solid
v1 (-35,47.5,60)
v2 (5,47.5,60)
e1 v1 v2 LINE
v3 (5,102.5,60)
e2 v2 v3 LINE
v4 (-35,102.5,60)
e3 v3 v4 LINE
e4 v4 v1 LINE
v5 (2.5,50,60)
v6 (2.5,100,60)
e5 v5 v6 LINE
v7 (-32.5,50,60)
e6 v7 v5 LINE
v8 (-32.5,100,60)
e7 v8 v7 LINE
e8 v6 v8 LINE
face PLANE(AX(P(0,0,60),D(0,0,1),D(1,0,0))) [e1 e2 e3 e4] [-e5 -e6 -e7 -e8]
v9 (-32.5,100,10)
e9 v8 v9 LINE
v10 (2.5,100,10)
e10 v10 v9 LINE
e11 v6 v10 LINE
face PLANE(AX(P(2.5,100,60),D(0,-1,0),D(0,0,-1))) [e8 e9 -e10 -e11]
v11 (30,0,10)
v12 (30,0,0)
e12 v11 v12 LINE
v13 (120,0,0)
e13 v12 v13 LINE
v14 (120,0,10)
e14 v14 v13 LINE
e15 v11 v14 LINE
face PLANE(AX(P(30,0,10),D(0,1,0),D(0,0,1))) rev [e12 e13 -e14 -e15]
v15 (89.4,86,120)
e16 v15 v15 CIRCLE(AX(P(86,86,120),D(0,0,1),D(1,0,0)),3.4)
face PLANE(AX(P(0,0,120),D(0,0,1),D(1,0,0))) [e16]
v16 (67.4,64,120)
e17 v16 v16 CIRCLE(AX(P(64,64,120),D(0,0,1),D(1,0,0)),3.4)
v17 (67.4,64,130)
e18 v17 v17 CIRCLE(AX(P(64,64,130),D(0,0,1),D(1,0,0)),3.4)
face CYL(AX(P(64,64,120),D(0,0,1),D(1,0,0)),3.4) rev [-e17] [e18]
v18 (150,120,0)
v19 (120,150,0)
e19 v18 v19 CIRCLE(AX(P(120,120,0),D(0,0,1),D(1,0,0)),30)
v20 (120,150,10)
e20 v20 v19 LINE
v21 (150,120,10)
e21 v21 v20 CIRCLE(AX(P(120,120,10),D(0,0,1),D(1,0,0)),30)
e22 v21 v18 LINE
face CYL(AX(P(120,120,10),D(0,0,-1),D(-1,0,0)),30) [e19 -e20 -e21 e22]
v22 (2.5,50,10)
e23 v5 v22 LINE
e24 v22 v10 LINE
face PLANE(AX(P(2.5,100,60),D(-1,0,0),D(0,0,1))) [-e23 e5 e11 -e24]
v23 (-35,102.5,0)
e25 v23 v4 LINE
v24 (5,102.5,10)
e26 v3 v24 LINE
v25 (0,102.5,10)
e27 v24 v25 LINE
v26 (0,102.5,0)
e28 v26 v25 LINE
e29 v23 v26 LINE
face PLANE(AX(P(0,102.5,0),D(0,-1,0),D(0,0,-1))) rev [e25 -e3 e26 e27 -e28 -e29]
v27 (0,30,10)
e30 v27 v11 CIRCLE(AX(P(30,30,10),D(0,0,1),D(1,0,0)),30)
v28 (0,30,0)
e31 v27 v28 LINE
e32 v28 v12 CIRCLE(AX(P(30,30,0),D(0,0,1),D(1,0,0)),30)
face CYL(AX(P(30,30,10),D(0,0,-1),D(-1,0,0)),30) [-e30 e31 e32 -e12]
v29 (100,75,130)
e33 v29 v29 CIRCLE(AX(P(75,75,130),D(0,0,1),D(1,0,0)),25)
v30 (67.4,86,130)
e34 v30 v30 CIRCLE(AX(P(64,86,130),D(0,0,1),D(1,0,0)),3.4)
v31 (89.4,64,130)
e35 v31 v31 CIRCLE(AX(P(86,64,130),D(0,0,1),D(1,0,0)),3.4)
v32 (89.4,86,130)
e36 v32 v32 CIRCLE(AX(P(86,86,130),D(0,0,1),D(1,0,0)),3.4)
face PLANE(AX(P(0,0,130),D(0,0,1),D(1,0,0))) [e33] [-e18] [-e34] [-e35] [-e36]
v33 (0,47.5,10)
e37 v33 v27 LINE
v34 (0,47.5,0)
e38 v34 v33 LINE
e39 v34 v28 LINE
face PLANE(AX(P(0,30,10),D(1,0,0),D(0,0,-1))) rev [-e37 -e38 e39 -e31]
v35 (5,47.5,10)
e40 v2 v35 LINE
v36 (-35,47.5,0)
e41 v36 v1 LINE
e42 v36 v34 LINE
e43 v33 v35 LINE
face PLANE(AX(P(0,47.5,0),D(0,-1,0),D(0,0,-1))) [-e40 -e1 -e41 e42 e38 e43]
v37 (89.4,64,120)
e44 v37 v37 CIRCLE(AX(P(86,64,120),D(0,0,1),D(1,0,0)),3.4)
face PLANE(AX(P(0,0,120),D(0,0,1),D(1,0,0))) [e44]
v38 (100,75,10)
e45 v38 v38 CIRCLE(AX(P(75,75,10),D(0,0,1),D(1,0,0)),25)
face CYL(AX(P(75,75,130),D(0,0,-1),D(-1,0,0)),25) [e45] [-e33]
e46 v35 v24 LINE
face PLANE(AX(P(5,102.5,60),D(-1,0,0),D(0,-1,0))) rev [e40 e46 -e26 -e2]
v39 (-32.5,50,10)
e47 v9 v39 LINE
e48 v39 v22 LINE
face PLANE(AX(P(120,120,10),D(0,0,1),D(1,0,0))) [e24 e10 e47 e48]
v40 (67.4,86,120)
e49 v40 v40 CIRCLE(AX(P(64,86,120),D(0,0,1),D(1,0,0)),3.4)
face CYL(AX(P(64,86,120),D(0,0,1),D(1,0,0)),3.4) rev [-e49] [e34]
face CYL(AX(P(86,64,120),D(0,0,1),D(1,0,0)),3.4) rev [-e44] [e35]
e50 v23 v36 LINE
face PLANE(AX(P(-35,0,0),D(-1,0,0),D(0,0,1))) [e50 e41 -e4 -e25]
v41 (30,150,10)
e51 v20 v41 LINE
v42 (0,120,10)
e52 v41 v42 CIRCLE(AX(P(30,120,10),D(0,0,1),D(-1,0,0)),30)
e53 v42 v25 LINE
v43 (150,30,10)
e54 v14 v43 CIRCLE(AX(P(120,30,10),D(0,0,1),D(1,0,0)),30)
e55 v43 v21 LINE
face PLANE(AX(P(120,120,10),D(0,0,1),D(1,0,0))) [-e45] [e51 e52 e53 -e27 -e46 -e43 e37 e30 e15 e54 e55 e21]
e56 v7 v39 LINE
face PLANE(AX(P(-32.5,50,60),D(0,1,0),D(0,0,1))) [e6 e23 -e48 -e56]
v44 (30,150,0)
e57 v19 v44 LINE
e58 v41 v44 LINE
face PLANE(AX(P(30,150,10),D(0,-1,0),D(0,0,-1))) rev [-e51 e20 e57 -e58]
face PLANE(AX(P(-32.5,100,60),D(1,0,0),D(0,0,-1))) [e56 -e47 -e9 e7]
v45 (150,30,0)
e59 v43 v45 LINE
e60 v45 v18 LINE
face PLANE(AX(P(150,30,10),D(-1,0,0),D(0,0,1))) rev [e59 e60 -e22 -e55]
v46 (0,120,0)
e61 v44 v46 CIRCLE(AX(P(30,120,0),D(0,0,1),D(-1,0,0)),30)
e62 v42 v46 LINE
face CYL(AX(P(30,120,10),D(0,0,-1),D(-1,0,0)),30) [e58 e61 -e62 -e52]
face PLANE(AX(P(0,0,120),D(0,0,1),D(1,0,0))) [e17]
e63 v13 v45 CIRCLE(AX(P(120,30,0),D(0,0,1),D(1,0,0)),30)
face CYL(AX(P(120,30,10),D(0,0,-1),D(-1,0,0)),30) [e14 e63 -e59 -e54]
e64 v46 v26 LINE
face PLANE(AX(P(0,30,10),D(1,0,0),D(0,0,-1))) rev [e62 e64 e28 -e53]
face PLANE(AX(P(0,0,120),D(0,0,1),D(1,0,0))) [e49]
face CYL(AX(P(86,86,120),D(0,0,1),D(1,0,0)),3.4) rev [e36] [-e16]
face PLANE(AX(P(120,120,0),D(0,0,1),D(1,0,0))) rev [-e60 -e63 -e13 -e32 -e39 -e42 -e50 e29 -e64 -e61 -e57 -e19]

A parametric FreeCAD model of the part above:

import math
import FreeCAD as App
import Part
import Sketcher

doc = App.newDocument("Part")
body = doc.addObject("PartDesign::Body", "Body")

# Sketch on XY plane
sketch1 = body.newObject("Sketcher::SketchObject", "Sketch")
sketch1.AttachmentSupport = (doc.getObject("XY_Plane"), [""])
sketch1.MapMode = "FlatFace"
sketch1.addGeometry(Part.LineSegment(App.Vector(30, 0, 0), App.Vector(120, 0, 0)), False)
sketch1.addGeometry(Part.ArcOfCircle(Part.Circle(App.Vector(120, 30, 0), App.Vector(0, 0, 1), 30), math.radians(-90), math.radians(0)), False)
sketch1.addGeometry(Part.LineSegment(App.Vector(150, 30, 0), App.Vector(150, 120, 0)), False)
sketch1.addGeometry(Part.ArcOfCircle(Part.Circle(App.Vector(120, 120, 0), App.Vector(0, 0, 1), 30), math.radians(0), math.radians(90)), False)
sketch1.addGeometry(Part.LineSegment(App.Vector(120, 150, 0), App.Vector(30, 150, 0)), False)
sketch1.addGeometry(Part.ArcOfCircle(Part.Circle(App.Vector(30, 120, 0), App.Vector(0, 0, 1), 30), math.radians(90), math.radians(180)), False)
sketch1.addGeometry(Part.LineSegment(App.Vector(0, 120, 0), App.Vector(0, 30, 0)), False)
sketch1.addGeometry(Part.ArcOfCircle(Part.Circle(App.Vector(30, 30, 0), App.Vector(0, 0, 1), 30), math.radians(180), math.radians(270)), False)
sketch1.addConstraint(Sketcher.Constraint("Tangent", 0, 2, 1, 1))
sketch1.addConstraint(Sketcher.Constraint("Tangent", 1, 2, 2, 1))
sketch1.addConstraint(Sketcher.Constraint("Tangent", 2, 2, 3, 1))
sketch1.addConstraint(Sketcher.Constraint("Tangent", 3, 2, 4, 1))
sketch1.addConstraint(Sketcher.Constraint("Tangent", 4, 2, 5, 1))
sketch1.addConstraint(Sketcher.Constraint("Tangent", 5, 2, 6, 1))
sketch1.addConstraint(Sketcher.Constraint("Tangent", 6, 2, 7, 1))
sketch1.addConstraint(Sketcher.Constraint("Tangent", 7, 2, 0, 1))
sketch1.addConstraint(Sketcher.Constraint("Horizontal", 0))
sketch1.addConstraint(Sketcher.Constraint("Vertical", 2))
sketch1.addConstraint(Sketcher.Constraint("Horizontal", 4))
sketch1.addConstraint(Sketcher.Constraint("Vertical", 6))
sketch1.addConstraint(Sketcher.Constraint("Equal", 1, 3))
sketch1.addConstraint(Sketcher.Constraint("Equal", 3, 5))
sketch1.addConstraint(Sketcher.Constraint("Equal", 5, 7))
sketch1.addConstraint(Sketcher.Constraint("PointOnObject", 0, 2, -1))
sketch1.addConstraint(Sketcher.Constraint("PointOnObject", 5, 2, -2))
sketch1.addConstraint(Sketcher.Constraint("Equal", 4, 2))
sketch1.addConstraint(Sketcher.Constraint("Radius", 1, 30.0))
sketch1.addConstraint(Sketcher.Constraint("DistanceX", 0, 1, 0, 2, 90.0))
pad1 = body.newObject("PartDesign::Pad", "Pad")
pad1.Profile = sketch1
pad1.Length = 10

# Sketch on XY plane
sketch2 = body.newObject("Sketcher::SketchObject", "Sketch001")
sketch2.AttachmentSupport = (doc.getObject("XY_Plane"), [""])
sketch2.MapMode = "FlatFace"
sketch2.AttachmentOffset = App.Placement(App.Vector(0, 0, 10), App.Rotation())
sketch2.addGeometry(Part.ArcOfCircle(Part.Circle(App.Vector(75, 75, 0), App.Vector(0, 0, 1), 25), math.radians(0), math.radians(135)), False)
sketch2.addGeometry(Part.ArcOfCircle(Part.Circle(App.Vector(75, 75, 0), App.Vector(0, 0, 1), 25), math.radians(135), math.radians(315)), False)
sketch2.addGeometry(Part.ArcOfCircle(Part.Circle(App.Vector(75, 75, 0), App.Vector(0, 0, 1), 25), math.radians(-45), math.radians(0)), False)
sketch2.addConstraint(Sketcher.Constraint("Tangent", 0, 2, 1, 1))
sketch2.addConstraint(Sketcher.Constraint("Tangent", 1, 2, 2, 1))
sketch2.addConstraint(Sketcher.Constraint("Tangent", 2, 2, 0, 1))
sketch2.addConstraint(Sketcher.Constraint("Horizontal", 1, 3, 2, 2))
sketch2.addConstraint(Sketcher.Constraint("Radius", 0, 25.0))
sketch2.addConstraint(Sketcher.Constraint("DistanceX", -1, 1, 0, 3, 75.0))
sketch2.addConstraint(Sketcher.Constraint("DistanceY", -1, 1, 0, 3, 75.0))
sketch2.addConstraint(Sketcher.Constraint("DistanceX", -1, 1, 0, 2, 57.32233))
sketch2.addConstraint(Sketcher.Constraint("DistanceX", -1, 1, 1, 2, 92.67767))
pad2 = body.newObject("PartDesign::Pad", "Pad001")
pad2.Profile = sketch2
pad2.Length = 120

# Sketch on XY plane
sketch3 = body.newObject("Sketcher::SketchObject", "Sketch002")
sketch3.AttachmentSupport = (doc.getObject("XY_Plane"), [""])
sketch3.MapMode = "FlatFace"
sketch3.AttachmentOffset = App.Placement(App.Vector(0, 0, 130), App.Rotation())
sketch3.addGeometry(Part.ArcOfCircle(Part.Circle(App.Vector(64, 86, 0), App.Vector(0, 0, 1), 3.4), math.radians(0), math.radians(270)), False)
sketch3.addGeometry(Part.ArcOfCircle(Part.Circle(App.Vector(64, 86, 0), App.Vector(0, 0, 1), 3.4), math.radians(-90), math.radians(0)), False)
sketch3.addGeometry(Part.ArcOfCircle(Part.Circle(App.Vector(64, 64, 0), App.Vector(0, 0, 1), 3.4), math.radians(0), math.radians(90)), False)
sketch3.addGeometry(Part.ArcOfCircle(Part.Circle(App.Vector(64, 64, 0), App.Vector(0, 0, 1), 3.4), math.radians(90), math.radians(360)), False)
sketch3.addGeometry(Part.ArcOfCircle(Part.Circle(App.Vector(86, 64, 0), App.Vector(0, 0, 1), 3.4), math.radians(90), math.radians(180)), False)
sketch3.addGeometry(Part.ArcOfCircle(Part.Circle(App.Vector(86, 64, 0), App.Vector(0, 0, 1), 3.4), math.radians(180), math.radians(360)), False)
sketch3.addGeometry(Part.ArcOfCircle(Part.Circle(App.Vector(86, 64, 0), App.Vector(0, 0, 1), 3.4), math.radians(0), math.radians(90)), False)
sketch3.addGeometry(Part.ArcOfCircle(Part.Circle(App.Vector(86, 86, 0), App.Vector(0, 0, 1), 3.4), math.radians(180), math.radians(270)), False)
sketch3.addGeometry(Part.ArcOfCircle(Part.Circle(App.Vector(86, 86, 0), App.Vector(0, 0, 1), 3.4), math.radians(-90), math.radians(0)), False)
sketch3.addGeometry(Part.ArcOfCircle(Part.Circle(App.Vector(86, 86, 0), App.Vector(0, 0, 1), 3.4), math.radians(0), math.radians(180)), False)
sketch3.addConstraint(Sketcher.Constraint("Tangent", 0, 1, 1, 2))
sketch3.addConstraint(Sketcher.Constraint("Coincident", 1, 1, 0, 2))
sketch3.addConstraint(Sketcher.Constraint("Tangent", 2, 1, 3, 2))
sketch3.addConstraint(Sketcher.Constraint("Coincident", 3, 1, 2, 2))
sketch3.addConstraint(Sketcher.Constraint("Tangent", 4, 2, 5, 1))
sketch3.addConstraint(Sketcher.Constraint("Tangent", 5, 2, 6, 1))
sketch3.addConstraint(Sketcher.Constraint("Tangent", 6, 2, 4, 1))
sketch3.addConstraint(Sketcher.Constraint("Tangent", 7, 2, 8, 1))
sketch3.addConstraint(Sketcher.Constraint("Tangent", 8, 2, 9, 1))
sketch3.addConstraint(Sketcher.Constraint("Tangent", 9, 2, 7, 1))
sketch3.addConstraint(Sketcher.Constraint("Equal", 1, 2))
sketch3.addConstraint(Sketcher.Constraint("Equal", 3, 4))
sketch3.addConstraint(Sketcher.Constraint("Equal", 6, 7))
sketch3.addConstraint(Sketcher.Constraint("Horizontal", 3, 3, 4, 3))
sketch3.addConstraint(Sketcher.Constraint("Horizontal", 1, 3, 7, 3))
sketch3.addConstraint(Sketcher.Constraint("Horizontal", 9, 3, 0, 1))
sketch3.addConstraint(Sketcher.Constraint("Horizontal", 6, 3, 2, 1))
sketch3.addConstraint(Sketcher.Constraint("Horizontal", 2, 1, 4, 2))
sketch3.addConstraint(Sketcher.Constraint("Horizontal", 4, 2, 5, 2))
sketch3.addConstraint(Sketcher.Constraint("Horizontal", 0, 1, 8, 2))
sketch3.addConstraint(Sketcher.Constraint("Horizontal", 8, 2, 9, 2))
sketch3.addConstraint(Sketcher.Constraint("Vertical", 1, 3, 2, 3))
sketch3.addConstraint(Sketcher.Constraint("Vertical", 6, 3, 7, 3))
sketch3.addConstraint(Sketcher.Constraint("Vertical", 3, 3, 1, 1))
sketch3.addConstraint(Sketcher.Constraint("Vertical", 1, 1, 3, 1))
sketch3.addConstraint(Sketcher.Constraint("Vertical", 9, 3, 6, 2))
sketch3.addConstraint(Sketcher.Constraint("Vertical", 6, 2, 7, 2))
sketch3.addConstraint(Sketcher.Constraint("Radius", 0, 3.4))
sketch3.addConstraint(Sketcher.Constraint("DistanceX", -1, 1, 0, 3, 64.0))
sketch3.addConstraint(Sketcher.Constraint("DistanceY", -1, 1, 0, 3, 86.0))
sketch3.addConstraint(Sketcher.Constraint("DistanceY", -1, 1, 2, 3, 64.0))
sketch3.addConstraint(Sketcher.Constraint("DistanceX", -1, 1, 4, 3, 86.0))
pocket1 = body.newObject("PartDesign::Pocket", "Pocket")
pocket1.Profile = sketch3
pocket1.Length = 10

# Sketch on XY plane
sketch4 = body.newObject("Sketcher::SketchObject", "Sketch003")
sketch4.AttachmentSupport = (doc.getObject("XY_Plane"), [""])
sketch4.MapMode = "FlatFace"
sketch4.AttachmentOffset = App.Placement(App.Vector(0, 0, 10), App.Rotation())
sketch4.addGeometry(Part.LineSegment(App.Vector(0, 102, 0), App.Vector(-35, 102, 0)), False)
sketch4.addGeometry(Part.LineSegment(App.Vector(-35, 102, 0), App.Vector(-35, 48, 0)), False)
sketch4.addGeometry(Part.LineSegment(App.Vector(-35, 48, 0), App.Vector(0, 48, 0)), False)
sketch4.addGeometry(Part.LineSegment(App.Vector(0, 48, 0), App.Vector(0, 102, 0)), False)
sketch4.addConstraint(Sketcher.Constraint("Coincident", 0, 2, 1, 1))
sketch4.addConstraint(Sketcher.Constraint("Coincident", 1, 2, 2, 1))
sketch4.addConstraint(Sketcher.Constraint("Coincident", 2, 2, 3, 1))
sketch4.addConstraint(Sketcher.Constraint("Coincident", 3, 2, 0, 1))
sketch4.addConstraint(Sketcher.Constraint("Horizontal", 0))
sketch4.addConstraint(Sketcher.Constraint("Vertical", 1))
sketch4.addConstraint(Sketcher.Constraint("Horizontal", 2))
sketch4.addConstraint(Sketcher.Constraint("Vertical", 3))
sketch4.addConstraint(Sketcher.Constraint("PointOnObject", 2, 2, -2))
sketch4.addConstraint(Sketcher.Constraint("DistanceX", 0, 2, 0, 1, 35.0))
sketch4.addConstraint(Sketcher.Constraint("DistanceY", 1, 2, 1, 1, 55.0))
sketch4.addConstraint(Sketcher.Constraint("DistanceY", -1, 1, 0, 2, 102.5))
pad3 = body.newObject("PartDesign::Pad", "Pad002")
pad3.Profile = sketch4
pad3.Length = 10
pad3.Reversed = True

# Sketch on XY plane
sketch5 = body.newObject("Sketcher::SketchObject", "Sketch004")
sketch5.AttachmentSupport = (doc.getObject("XY_Plane"), [""])
sketch5.MapMode = "FlatFace"
sketch5.AttachmentOffset = App.Placement(App.Vector(0, 0, 10), App.Rotation())
sketch5.addGeometry(Part.LineSegment(App.Vector(5, 102, 0), App.Vector(-35, 102, 0)), False)
sketch5.addGeometry(Part.LineSegment(App.Vector(-35, 102, 0), App.Vector(-35, 48, 0)), False)
sketch5.addGeometry(Part.LineSegment(App.Vector(-35, 48, 0), App.Vector(5, 48, 0)), False)
sketch5.addGeometry(Part.LineSegment(App.Vector(5, 48, 0), App.Vector(5, 102, 0)), False)
sketch5.addGeometry(Part.LineSegment(App.Vector(-32, 50, 0), App.Vector(-32, 100, 0)), False)
sketch5.addGeometry(Part.LineSegment(App.Vector(-32, 100, 0), App.Vector(2, 100, 0)), False)
sketch5.addGeometry(Part.LineSegment(App.Vector(2, 100, 0), App.Vector(2, 50, 0)), False)
sketch5.addGeometry(Part.LineSegment(App.Vector(2, 50, 0), App.Vector(-32, 50, 0)), False)
sketch5.addConstraint(Sketcher.Constraint("Coincident", 0, 2, 1, 1))
sketch5.addConstraint(Sketcher.Constraint("Coincident", 1, 2, 2, 1))
sketch5.addConstraint(Sketcher.Constraint("Coincident", 2, 2, 3, 1))
sketch5.addConstraint(Sketcher.Constraint("Coincident", 3, 2, 0, 1))
sketch5.addConstraint(Sketcher.Constraint("Coincident", 4, 2, 5, 1))
sketch5.addConstraint(Sketcher.Constraint("Coincident", 5, 2, 6, 1))
sketch5.addConstraint(Sketcher.Constraint("Coincident", 6, 2, 7, 1))
sketch5.addConstraint(Sketcher.Constraint("Coincident", 7, 2, 4, 1))
sketch5.addConstraint(Sketcher.Constraint("Horizontal", 0))
sketch5.addConstraint(Sketcher.Constraint("Vertical", 1))
sketch5.addConstraint(Sketcher.Constraint("Horizontal", 2))
sketch5.addConstraint(Sketcher.Constraint("Vertical", 3))
sketch5.addConstraint(Sketcher.Constraint("Vertical", 4))
sketch5.addConstraint(Sketcher.Constraint("Horizontal", 5))
sketch5.addConstraint(Sketcher.Constraint("Vertical", 6))
sketch5.addConstraint(Sketcher.Constraint("Horizontal", 7))
sketch5.addConstraint(Sketcher.Constraint("DistanceX", 0, 2, 0, 1, 40.0))
sketch5.addConstraint(Sketcher.Constraint("DistanceX", 5, 1, 5, 2, 35.0))
sketch5.addConstraint(Sketcher.Constraint("DistanceY", 1, 2, 1, 1, 55.0))
sketch5.addConstraint(Sketcher.Constraint("DistanceY", 4, 1, 4, 2, 50.0))
sketch5.addConstraint(Sketcher.Constraint("DistanceX", 0, 2, -1, 1, 35.0))
sketch5.addConstraint(Sketcher.Constraint("DistanceY", -1, 1, 4, 2, 100.0))
sketch5.addConstraint(Sketcher.Constraint("DistanceY", -1, 1, 0, 2, 102.5))
sketch5.addConstraint(Sketcher.Constraint("DistanceX", 4, 2, -1, 1, 32.5))
pad4 = body.newObject("PartDesign::Pad", "Pad003")
pad4.Profile = sketch5
pad4.Length = 50

doc.recompute()
